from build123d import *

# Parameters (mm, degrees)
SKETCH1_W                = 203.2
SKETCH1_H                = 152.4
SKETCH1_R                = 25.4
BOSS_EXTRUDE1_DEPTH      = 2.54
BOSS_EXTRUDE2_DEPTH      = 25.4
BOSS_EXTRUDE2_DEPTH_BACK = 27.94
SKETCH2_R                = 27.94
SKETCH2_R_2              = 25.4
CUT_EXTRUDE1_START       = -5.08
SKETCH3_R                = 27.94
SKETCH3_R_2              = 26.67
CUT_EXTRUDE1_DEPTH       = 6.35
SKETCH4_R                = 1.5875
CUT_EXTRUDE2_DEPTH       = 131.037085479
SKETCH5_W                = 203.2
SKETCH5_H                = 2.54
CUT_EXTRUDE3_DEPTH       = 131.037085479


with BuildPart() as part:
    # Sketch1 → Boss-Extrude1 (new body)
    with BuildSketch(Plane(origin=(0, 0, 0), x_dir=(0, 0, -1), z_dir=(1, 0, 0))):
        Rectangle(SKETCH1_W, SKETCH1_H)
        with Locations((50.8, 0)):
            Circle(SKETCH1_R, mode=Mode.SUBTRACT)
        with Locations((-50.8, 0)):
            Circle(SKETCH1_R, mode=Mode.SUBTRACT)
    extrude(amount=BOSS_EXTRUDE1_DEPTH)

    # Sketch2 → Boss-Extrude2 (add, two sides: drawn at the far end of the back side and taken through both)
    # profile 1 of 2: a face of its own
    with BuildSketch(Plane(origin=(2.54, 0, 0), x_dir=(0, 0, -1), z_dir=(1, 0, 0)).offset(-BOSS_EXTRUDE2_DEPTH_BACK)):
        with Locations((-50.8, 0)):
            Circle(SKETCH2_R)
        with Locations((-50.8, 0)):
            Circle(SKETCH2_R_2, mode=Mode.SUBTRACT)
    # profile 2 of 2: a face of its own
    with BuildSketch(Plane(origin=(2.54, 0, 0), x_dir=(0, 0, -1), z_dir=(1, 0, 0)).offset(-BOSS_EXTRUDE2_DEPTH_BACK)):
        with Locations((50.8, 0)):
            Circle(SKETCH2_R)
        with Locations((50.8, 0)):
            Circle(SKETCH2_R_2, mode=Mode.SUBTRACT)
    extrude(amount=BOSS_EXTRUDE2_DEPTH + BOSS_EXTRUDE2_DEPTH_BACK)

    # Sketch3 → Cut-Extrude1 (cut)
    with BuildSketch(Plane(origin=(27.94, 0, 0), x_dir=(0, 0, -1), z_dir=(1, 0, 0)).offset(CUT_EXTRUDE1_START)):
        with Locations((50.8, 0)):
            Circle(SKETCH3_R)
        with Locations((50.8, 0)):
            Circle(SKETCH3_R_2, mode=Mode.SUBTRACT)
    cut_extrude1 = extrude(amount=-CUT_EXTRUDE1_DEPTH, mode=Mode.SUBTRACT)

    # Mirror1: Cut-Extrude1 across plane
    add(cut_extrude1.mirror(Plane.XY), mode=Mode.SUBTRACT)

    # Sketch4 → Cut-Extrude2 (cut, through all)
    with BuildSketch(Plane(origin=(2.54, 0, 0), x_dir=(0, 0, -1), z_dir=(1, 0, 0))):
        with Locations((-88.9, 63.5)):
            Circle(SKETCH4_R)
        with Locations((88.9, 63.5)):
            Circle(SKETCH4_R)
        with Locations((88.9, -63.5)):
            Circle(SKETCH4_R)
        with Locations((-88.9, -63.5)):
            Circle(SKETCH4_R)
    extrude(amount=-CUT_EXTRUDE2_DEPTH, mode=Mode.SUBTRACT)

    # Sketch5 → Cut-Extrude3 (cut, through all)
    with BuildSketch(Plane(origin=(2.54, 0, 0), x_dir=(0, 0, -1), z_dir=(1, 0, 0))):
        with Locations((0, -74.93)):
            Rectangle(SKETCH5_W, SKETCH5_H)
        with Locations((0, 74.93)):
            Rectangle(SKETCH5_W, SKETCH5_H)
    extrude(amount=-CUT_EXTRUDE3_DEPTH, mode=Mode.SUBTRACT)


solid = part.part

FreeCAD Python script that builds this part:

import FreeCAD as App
import Part
import Sketcher

V = App.Vector
Q = App.Units.Quantity

doc = App.newDocument("Part")
body = doc.addObject("PartDesign::Body", "Body")

# Sketch on YZ plane
sketch1 = doc.addObject("Sketcher::SketchObject", "Sketch")
body.addObject(sketch1)
sketch1.AttachmentSupport = (doc.YZ_Plane, [""])
sketch1.MapMode = "FlatFace"
sketch1.addGeometry([
    Part.LineSegment(V(76, 102, 0), V(-76, 102, 0)),  # 0
    Part.LineSegment(V(-76, 102, 0), V(-76, -102, 0)),  # 1
    Part.LineSegment(V(-76, -102, 0), V(76, -102, 0)),  # 2
    Part.LineSegment(V(76, -102, 0), V(76, 102, 0)),  # 3
    Part.Circle(V(0, 51, 0), V(0, 0, 1), 25),  # 4
    Part.Circle(V(0, -51, 0), V(0, 0, 1), 25),  # 5
], False)
sketch1.addConstraint([
    Sketcher.Constraint("Coincident", 0, 2, 1, 1),
    Sketcher.Constraint("Coincident", 1, 2, 2, 1),
    Sketcher.Constraint("Coincident", 2, 2, 3, 1),
    Sketcher.Constraint("Coincident", 3, 2, 0, 1),
    Sketcher.Constraint("Horizontal", 0),
    Sketcher.Constraint("Vertical", 1),
    Sketcher.Constraint("Horizontal", 2),
    Sketcher.Constraint("Vertical", 3),
    Sketcher.Constraint("Equal", 4, 5),
    Sketcher.Constraint("Symmetric", 4, 3, 5, 3, -1, 1),
    Sketcher.Constraint("Symmetric", 0, 2, 2, 2, -1, 1),
    Sketcher.Constraint("PointOnObject", 4, 3, -2),
    Sketcher.Constraint("Diameter", 4, Q("2 in")),
    Sketcher.Constraint("DistanceX", 0, 2, 0, 1, Q("6 in")),
    Sketcher.Constraint("DistanceY", 1, 2, 1, 1, Q("8 in")),
    Sketcher.Constraint("DistanceY", -1, 1, 4, 3, Q("2 in")),
])
pad1 = doc.addObject("PartDesign::Pad", "Pad")
body.addObject(pad1)
pad1.Profile = sketch1
pad1.Length = Q("0.1 in")

# Sketch on YZ plane
sketch2 = doc.addObject("Sketcher::SketchObject", "Sketch001")
body.addObject(sketch2)
sketch2.AttachmentSupport = (doc.YZ_Plane, [""])
sketch2.MapMode = "FlatFace"
sketch2.AttachmentOffset = App.Placement(V(0, 0, 0.1 * 25.4), App.Rotation())
sketch2.addGeometry([
    Part.Circle(V(0, 51, 0), V(0, 0, 1), 28),
    Part.Circle(V(0, 51, 0), V(0, 0, 1), 25),
    Part.Circle(V(0, -51, 0), V(0, 0, 1), 28),
    Part.Circle(V(0, -51, 0), V(0, 0, 1), 25),
], False)
sketch2.addConstraint([
    Sketcher.Constraint("Coincident", 1, 3, 0, 3),
    Sketcher.Constraint("Coincident", 3, 3, 2, 3),
    Sketcher.Constraint("Equal", 0, 2),
    Sketcher.Constraint("Equal", 1, 3),
    Sketcher.Constraint("Symmetric", 0, 3, 2, 3, -1, 1),
    Sketcher.Constraint("PointOnObject", 0, 3, -2),
    Sketcher.Constraint("Diameter", 1, Q("2 in")),
    Sketcher.Constraint("Diameter", 0, Q("2.2 in")),
    Sketcher.Constraint("DistanceY", -1, 1, 0, 3, Q("2 in")),
])
pad2 = doc.addObject("PartDesign::Pad", "Pad001")
body.addObject(pad2)
pad2.Profile = sketch2
pad2.Type = "TwoLengths"
pad2.Length = Q("1 in")
pad2.Length2 = Q("1.1 in")

# Sketch on YZ plane
sketch3 = doc.addObject("Sketcher::SketchObject", "Sketch002")
body.addObject(sketch3)
sketch3.AttachmentSupport = (doc.YZ_Plane, [""])
sketch3.MapMode = "FlatFace"
sketch3.AttachmentOffset = App.Placement(V(0, 0, 0.9 * 25.4), App.Rotation())
sketch3.addGeometry([
    Part.Circle(V(0, -51, 0), V(0, 0, 1), 28),
    Part.Circle(V(0, -51, 0), V(0, 0, 1), 27),
], False)
sketch3.addConstraint([
    Sketcher.Constraint("Coincident", 1, 3, 0, 3),
    Sketcher.Constraint("PointOnObject", 0, 3, -2),
    Sketcher.Constraint("Diameter", 0, Q("2.2 in")),
    Sketcher.Constraint("Diameter", 1, Q("2.1 in")),
    Sketcher.Constraint("DistanceY", 0, 3, -1, 1, Q("2 in")),
])
pocket1 = doc.addObject("PartDesign::Pocket", "Pocket")
body.addObject(pocket1)
pocket1.Profile = sketch3
pocket1.Length = Q("0.25 in")
doc.recompute()

mirrored = doc.addObject("PartDesign::Mirrored", "Mirrored")
body.addObject(mirrored)
mirrored.Originals = [pocket1]
mirrored.MirrorPlane = (doc.XY_Plane, [""])
body.Tip = mirrored

# Sketch on YZ plane
sketch4 = doc.addObject("Sketcher::SketchObject", "Sketch003")
body.addObject(sketch4)
sketch4.AttachmentSupport = (doc.YZ_Plane, [""])
sketch4.MapMode = "FlatFace"
sketch4.AttachmentOffset = App.Placement(V(0, 0, 0.1 * 25.4), App.Rotation())
sketch4.addGeometry([
    Part.Circle(V(63.5, 88.9, 0), V(0, 0, 1), 1.6),
    Part.Circle(V(63.5, -88.9, 0), V(0, 0, 1), 1.6),
    Part.Circle(V(-63.5, -88.9, 0), V(0, 0, 1), 1.6),
    Part.Circle(V(-63.5, 88.9, 0), V(0, 0, 1), 1.6),
], False)
sketch4.addConstraint([
    Sketcher.Constraint("Equal", 0, 1),
    Sketcher.Constraint("Equal", 1, 2),
    Sketcher.Constraint("Equal", 2, 3),
    Sketcher.Constraint("Symmetric", 0, 3, 2, 3, -1, 1),
    Sketcher.Constraint("Symmetric", 1, 3, 3, 3, -1, 1),
    Sketcher.Constraint("Symmetric", 1, 3, 2, 3, -2),
    Sketcher.Constraint("Diameter", 0, Q("0.125 in")),
    Sketcher.Constraint("DistanceY", 1, 3, 0, 3, Q("7 in")),
    Sketcher.Constraint("DistanceX", 2, 3, 1, 3, Q("5 in")),
])
pocket2 = doc.addObject("PartDesign::Pocket", "Pocket001")
body.addObject(pocket2)
pocket2.Profile = sketch4
pocket2.Type = "ThroughAll"

# Sketch on YZ plane
sketch5 = doc.addObject("Sketcher::SketchObject", "Sketch004")
body.addObject(sketch5)
sketch5.AttachmentSupport = (doc.YZ_Plane, [""])
sketch5.MapMode = "FlatFace"
sketch5.AttachmentOffset = App.Placement(V(0, 0, 0.1 * 25.4), App.Rotation())
sketch5.addGeometry([
    Part.LineSegment(V(-73.7, 101.6, 0), V(-76.2, 101.6, 0)),  # 0
    Part.LineSegment(V(-76.2, 101.6, 0), V(-76.2, -101.6, 0)),  # 1
    Part.LineSegment(V(-76.2, -101.6, 0), V(-73.7, -101.6, 0)),  # 2
    Part.LineSegment(V(-73.7, -101.6, 0), V(-73.7, 101.6, 0)),  # 3
    Part.LineSegment(V(76.2, 101.6, 0), V(73.7, 101.6, 0)),  # 4
    Part.LineSegment(V(73.7, 101.6, 0), V(73.7, -101.6, 0)),  # 5
    Part.LineSegment(V(73.7, -101.6, 0), V(76.2, -101.6, 0)),  # 6
    Part.LineSegment(V(76.2, -101.6, 0), V(76.2, 101.6, 0)),  # 7
], False)
sketch5.addConstraint([
    Sketcher.Constraint("Coincident", 0, 2, 1, 1),
    Sketcher.Constraint("Coincident", 1, 2, 2, 1),
    Sketcher.Constraint("Coincident", 2, 2, 3, 1),
    Sketcher.Constraint("Coincident", 3, 2, 0, 1),
    Sketcher.Constraint("Coincident", 4, 2, 5, 1),
    Sketcher.Constraint("Coincident", 5, 2, 6, 1),
    Sketcher.Constraint("Coincident", 6, 2, 7, 1),
    Sketcher.Constraint("Coincident", 7, 2, 4, 1),
    Sketcher.Constraint("Horizontal", 0),
    Sketcher.Constraint("Vertical", 1),
    Sketcher.Constraint("Horizontal", 2),
    Sketcher.Constraint("Vertical", 3),
    Sketcher.Constraint("Horizontal", 4),
    Sketcher.Constraint("Vertical", 5),
    Sketcher.Constraint("Horizontal", 6),
    Sketcher.Constraint("Vertical", 7),
    Sketcher.Constraint("Symmetric", 2, 2, 4, 2, -1, 1),
    Sketcher.Constraint("Symmetric", 0, 2, 6, 2, -1, 1),
    Sketcher.Constraint("Horizontal", 3, 2, 4, 2),
    Sketcher.Constraint("DistanceY", 1, 2, 1, 1, Q("8 in")),
    Sketcher.Constraint("DistanceX", 0, 2, 0, 1, Q("0.1 in")),
    Sketcher.Constraint("DistanceX", 0, 2, -1, 1, Q("3 in")),
])
pocket3 = doc.addObject("PartDesign::Pocket", "Pocket002")
body.addObject(pocket3)
pocket3.Profile = sketch5
pocket3.Type = "ThroughAll"

doc.recompute()
